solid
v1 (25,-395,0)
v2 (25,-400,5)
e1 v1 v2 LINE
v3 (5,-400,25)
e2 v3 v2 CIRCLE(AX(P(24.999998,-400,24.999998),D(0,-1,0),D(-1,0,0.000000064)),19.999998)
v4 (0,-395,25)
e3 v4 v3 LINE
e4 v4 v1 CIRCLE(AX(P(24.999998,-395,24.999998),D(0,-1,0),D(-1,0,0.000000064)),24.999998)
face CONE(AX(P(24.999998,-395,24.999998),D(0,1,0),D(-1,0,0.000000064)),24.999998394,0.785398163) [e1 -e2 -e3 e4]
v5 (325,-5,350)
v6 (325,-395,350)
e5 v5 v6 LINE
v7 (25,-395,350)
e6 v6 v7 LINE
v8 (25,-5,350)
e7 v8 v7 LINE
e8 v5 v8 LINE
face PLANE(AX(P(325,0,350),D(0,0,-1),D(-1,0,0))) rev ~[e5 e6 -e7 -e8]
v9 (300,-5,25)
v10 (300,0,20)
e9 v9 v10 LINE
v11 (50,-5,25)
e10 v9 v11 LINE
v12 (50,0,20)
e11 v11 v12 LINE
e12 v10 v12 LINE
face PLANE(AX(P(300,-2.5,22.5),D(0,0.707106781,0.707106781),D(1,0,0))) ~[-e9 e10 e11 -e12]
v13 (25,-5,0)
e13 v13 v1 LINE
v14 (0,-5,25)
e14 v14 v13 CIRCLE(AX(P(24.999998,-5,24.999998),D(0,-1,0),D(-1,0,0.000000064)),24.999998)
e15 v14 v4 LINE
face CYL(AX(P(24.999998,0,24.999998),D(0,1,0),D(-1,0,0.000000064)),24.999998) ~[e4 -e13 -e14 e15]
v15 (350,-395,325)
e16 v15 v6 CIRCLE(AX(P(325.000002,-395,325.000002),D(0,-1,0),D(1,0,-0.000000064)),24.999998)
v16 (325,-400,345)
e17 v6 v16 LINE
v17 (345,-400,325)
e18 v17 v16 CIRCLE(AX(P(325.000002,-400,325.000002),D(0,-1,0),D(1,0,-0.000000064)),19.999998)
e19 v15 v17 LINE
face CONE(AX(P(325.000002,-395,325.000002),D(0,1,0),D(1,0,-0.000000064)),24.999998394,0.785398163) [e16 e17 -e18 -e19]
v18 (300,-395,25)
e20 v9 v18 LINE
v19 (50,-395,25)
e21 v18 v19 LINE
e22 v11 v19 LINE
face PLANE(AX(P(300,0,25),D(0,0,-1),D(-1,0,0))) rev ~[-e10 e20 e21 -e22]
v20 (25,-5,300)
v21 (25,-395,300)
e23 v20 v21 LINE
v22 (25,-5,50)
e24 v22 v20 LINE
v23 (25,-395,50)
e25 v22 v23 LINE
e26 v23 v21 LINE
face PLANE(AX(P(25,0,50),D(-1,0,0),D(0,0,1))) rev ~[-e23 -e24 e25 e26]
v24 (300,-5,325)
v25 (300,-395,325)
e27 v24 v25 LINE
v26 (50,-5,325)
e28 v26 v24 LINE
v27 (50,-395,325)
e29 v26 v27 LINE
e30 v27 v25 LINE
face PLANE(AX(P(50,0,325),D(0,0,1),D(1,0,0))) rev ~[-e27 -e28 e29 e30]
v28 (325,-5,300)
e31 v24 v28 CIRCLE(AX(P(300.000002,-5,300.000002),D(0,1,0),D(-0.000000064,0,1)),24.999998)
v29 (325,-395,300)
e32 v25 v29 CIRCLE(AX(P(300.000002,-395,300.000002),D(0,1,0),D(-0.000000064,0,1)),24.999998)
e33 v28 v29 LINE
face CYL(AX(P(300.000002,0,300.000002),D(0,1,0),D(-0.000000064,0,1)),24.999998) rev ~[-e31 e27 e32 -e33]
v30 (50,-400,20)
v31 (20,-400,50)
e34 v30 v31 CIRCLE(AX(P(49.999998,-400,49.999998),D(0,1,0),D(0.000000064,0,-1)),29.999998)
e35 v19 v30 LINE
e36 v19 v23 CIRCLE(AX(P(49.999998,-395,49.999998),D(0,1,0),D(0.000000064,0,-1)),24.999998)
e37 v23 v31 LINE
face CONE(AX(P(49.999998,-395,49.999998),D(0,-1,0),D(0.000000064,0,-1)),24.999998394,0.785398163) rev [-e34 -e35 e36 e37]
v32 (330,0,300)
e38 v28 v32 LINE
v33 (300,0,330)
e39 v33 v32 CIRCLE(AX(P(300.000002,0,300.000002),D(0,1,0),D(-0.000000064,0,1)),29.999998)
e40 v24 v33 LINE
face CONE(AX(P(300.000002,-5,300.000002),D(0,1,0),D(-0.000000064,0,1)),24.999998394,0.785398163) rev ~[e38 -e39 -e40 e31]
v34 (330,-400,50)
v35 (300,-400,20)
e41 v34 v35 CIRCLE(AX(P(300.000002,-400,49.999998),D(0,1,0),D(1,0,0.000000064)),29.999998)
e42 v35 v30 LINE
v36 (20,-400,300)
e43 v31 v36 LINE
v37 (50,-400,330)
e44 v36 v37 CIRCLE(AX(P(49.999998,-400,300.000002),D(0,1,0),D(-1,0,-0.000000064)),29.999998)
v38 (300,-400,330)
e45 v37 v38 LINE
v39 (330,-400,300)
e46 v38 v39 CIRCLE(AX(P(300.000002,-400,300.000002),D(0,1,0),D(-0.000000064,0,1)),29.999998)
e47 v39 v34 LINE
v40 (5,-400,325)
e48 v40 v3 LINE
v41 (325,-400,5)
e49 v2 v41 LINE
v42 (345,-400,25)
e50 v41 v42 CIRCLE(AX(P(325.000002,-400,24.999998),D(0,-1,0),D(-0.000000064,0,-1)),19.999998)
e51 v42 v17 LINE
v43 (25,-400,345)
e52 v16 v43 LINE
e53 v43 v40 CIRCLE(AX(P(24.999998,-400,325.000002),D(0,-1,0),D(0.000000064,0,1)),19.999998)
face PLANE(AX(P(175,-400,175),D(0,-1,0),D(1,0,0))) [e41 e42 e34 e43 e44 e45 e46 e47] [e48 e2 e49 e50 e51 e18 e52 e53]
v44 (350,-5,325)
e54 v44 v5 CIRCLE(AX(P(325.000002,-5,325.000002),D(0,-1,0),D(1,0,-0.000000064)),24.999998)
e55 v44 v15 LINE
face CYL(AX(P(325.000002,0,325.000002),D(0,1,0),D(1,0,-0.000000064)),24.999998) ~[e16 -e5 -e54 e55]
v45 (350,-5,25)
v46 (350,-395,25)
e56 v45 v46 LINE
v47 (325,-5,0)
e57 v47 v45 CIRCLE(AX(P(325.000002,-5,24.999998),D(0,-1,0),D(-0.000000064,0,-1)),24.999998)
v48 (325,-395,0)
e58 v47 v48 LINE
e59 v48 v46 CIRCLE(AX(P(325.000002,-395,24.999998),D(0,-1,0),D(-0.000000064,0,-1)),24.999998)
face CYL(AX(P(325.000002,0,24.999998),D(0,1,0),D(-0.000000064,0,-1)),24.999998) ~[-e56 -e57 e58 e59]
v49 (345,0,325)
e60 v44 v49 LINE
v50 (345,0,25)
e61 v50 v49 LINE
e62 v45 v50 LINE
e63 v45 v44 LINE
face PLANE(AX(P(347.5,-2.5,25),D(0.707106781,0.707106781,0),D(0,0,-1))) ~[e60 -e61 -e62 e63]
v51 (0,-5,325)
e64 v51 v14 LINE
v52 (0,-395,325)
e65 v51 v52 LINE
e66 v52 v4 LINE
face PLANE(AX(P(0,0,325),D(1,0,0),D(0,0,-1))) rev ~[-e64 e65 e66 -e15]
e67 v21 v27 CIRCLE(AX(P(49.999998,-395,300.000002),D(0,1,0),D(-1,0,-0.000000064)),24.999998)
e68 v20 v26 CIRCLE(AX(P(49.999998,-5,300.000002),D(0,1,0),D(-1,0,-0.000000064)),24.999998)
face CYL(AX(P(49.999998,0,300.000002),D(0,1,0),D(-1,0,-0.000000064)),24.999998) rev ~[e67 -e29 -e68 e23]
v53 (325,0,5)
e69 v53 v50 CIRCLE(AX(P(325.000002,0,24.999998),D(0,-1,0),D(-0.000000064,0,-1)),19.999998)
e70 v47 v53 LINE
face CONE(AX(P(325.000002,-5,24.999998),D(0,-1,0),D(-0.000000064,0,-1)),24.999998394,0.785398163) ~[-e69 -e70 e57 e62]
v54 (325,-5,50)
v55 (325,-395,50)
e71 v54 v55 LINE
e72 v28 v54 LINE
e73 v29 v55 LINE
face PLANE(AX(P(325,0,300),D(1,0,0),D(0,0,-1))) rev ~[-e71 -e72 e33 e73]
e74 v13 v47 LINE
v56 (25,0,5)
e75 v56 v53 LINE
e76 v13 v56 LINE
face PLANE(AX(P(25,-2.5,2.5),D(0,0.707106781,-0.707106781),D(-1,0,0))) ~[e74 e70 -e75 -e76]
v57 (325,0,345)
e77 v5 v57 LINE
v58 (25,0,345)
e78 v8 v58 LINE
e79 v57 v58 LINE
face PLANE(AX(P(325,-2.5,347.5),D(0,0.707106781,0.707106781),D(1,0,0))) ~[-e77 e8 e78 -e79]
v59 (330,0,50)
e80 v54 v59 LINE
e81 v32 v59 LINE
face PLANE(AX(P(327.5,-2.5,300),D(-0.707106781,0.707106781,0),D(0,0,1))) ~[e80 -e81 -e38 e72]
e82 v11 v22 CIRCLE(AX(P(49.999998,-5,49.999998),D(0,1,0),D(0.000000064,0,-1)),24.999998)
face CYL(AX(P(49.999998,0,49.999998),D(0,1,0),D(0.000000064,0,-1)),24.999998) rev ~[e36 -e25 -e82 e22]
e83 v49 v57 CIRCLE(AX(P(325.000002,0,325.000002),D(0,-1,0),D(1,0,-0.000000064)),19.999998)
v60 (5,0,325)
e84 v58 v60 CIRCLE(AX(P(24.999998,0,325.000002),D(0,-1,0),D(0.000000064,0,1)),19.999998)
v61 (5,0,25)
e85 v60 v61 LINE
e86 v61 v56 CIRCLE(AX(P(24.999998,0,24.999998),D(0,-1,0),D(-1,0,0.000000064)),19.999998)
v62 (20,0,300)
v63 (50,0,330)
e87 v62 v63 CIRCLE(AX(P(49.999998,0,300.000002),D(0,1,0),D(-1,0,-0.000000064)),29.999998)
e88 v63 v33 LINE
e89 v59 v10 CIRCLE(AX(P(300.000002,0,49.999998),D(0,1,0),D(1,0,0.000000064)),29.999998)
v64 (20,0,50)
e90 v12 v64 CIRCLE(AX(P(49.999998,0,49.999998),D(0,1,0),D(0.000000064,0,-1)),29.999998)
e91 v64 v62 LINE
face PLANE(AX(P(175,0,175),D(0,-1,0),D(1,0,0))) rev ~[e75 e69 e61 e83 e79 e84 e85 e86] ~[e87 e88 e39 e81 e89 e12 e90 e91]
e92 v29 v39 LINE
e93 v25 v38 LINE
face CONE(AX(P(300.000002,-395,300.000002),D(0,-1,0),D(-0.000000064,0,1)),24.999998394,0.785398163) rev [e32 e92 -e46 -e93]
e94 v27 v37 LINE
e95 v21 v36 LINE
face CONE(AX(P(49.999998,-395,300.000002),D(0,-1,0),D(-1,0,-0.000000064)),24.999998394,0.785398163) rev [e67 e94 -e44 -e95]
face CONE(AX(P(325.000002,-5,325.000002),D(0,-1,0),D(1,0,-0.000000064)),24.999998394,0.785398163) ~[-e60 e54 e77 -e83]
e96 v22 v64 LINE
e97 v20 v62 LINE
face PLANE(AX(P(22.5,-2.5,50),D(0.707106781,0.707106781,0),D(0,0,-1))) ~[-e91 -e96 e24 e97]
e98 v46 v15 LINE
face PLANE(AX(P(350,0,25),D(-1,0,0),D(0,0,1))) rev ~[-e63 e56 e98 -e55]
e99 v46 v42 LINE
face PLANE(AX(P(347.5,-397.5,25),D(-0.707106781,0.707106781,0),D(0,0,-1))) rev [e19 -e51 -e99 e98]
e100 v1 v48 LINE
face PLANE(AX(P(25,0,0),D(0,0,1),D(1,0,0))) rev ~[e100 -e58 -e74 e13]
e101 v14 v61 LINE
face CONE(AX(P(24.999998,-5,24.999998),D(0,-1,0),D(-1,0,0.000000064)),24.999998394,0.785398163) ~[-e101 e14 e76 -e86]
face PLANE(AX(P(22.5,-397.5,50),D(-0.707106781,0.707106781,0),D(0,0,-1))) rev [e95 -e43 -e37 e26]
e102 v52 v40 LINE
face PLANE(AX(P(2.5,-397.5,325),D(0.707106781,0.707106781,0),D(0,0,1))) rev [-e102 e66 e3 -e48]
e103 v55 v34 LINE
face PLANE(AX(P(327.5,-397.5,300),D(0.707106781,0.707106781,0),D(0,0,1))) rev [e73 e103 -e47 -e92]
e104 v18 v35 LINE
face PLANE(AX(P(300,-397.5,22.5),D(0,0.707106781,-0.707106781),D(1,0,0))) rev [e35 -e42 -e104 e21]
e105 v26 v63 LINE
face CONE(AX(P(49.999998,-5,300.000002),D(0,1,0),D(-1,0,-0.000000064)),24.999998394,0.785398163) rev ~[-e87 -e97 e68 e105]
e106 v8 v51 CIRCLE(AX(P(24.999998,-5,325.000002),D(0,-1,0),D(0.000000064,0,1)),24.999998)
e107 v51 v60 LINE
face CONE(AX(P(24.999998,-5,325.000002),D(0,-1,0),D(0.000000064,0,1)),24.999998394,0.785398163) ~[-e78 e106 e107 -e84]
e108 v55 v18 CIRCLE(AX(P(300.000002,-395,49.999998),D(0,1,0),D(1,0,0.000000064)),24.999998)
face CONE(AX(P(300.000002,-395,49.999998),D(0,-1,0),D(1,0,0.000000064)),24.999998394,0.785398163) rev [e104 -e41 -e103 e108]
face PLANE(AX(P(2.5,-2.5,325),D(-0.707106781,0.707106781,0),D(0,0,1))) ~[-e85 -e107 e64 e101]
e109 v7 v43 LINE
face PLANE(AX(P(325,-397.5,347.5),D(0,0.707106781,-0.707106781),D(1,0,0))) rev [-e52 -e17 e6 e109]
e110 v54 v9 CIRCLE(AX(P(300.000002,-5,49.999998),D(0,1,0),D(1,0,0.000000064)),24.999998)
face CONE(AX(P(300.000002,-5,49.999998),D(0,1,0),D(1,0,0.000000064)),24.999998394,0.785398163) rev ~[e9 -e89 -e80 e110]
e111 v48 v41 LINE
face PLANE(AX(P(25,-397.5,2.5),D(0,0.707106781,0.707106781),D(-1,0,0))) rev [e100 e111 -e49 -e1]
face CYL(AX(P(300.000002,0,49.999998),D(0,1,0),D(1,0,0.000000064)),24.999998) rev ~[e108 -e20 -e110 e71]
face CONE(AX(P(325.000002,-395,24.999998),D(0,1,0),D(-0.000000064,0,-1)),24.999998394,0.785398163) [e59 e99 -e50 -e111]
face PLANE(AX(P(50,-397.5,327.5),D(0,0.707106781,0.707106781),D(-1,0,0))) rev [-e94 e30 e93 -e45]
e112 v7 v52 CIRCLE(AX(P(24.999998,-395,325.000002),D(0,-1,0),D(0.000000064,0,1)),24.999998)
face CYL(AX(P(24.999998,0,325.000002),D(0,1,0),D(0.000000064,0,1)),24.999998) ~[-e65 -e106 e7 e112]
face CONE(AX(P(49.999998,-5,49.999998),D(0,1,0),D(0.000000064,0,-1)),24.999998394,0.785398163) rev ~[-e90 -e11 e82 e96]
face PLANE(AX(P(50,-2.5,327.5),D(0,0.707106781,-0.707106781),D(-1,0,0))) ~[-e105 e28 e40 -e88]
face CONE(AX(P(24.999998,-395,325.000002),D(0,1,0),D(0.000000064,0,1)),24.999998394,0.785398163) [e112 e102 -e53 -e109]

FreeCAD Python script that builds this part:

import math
import FreeCAD as App
import Part
import Sketcher

V = App.Vector


def edges_at(feature, points):
    """Names of the edges that pass closest to the given points."""
    edges = feature.Shape.Edges
    near = lambda p: min(range(len(edges)), key=lambda i: edges[i].distToShape(Part.Vertex(*p))[0])
    return sorted({f"Edge{near(p) + 1}" for p in points})

doc = App.newDocument("Part")
body = doc.addObject("PartDesign::Body", "Body")

# Sketch on XZ plane
sketch1 = body.newObject("Sketcher::SketchObject", "Sketch")
sketch1.AttachmentSupport = (doc.getObject("XZ_Plane"), [""])
sketch1.MapMode = "FlatFace"
sketch1.addGeometry(Part.ArcOfCircle(Part.Circle(V(25, 25, 0), V(0, 0, 1), 25), math.radians(180), math.radians(270)), False)
sketch1.addGeometry(Part.LineSegment(V(25, 0, 0), V(325, 0, 0)), False)
sketch1.addGeometry(Part.ArcOfCircle(Part.Circle(V(325, 25, 0), V(0, 0, 1), 25), math.radians(-90), math.radians(0)), False)
sketch1.addGeometry(Part.LineSegment(V(350, 25, 0), V(350, 325, 0)), False)
sketch1.addGeometry(Part.ArcOfCircle(Part.Circle(V(325, 325, 0), V(0, 0, 1), 25), math.radians(0), math.radians(90)), False)
sketch1.addGeometry(Part.LineSegment(V(325, 350, 0), V(25, 350, 0)), False)
sketch1.addGeometry(Part.ArcOfCircle(Part.Circle(V(25, 325, 0), V(0, 0, 1), 25), math.radians(90), math.radians(180)), False)
sketch1.addGeometry(Part.LineSegment(V(0, 325, 0), V(0, 25, 0)), False)
sketch1.addGeometry(Part.LineSegment(V(25, 50, 0), V(25, 300, 0)), False)
sketch1.addGeometry(Part.ArcOfCircle(Part.Circle(V(50, 300, 0), V(0, 0, 1), 25), math.radians(90), math.radians(180)), False)
sketch1.addGeometry(Part.LineSegment(V(50, 325, 0), V(300, 325, 0)), False)
sketch1.addGeometry(Part.ArcOfCircle(Part.Circle(V(300, 300, 0), V(0, 0, 1), 25), math.radians(0), math.radians(90)), False)
sketch1.addGeometry(Part.LineSegment(V(325, 300, 0), V(325, 50, 0)), False)
sketch1.addGeometry(Part.ArcOfCircle(Part.Circle(V(300, 50, 0), V(0, 0, 1), 25), math.radians(-90), math.radians(0)), False)
sketch1.addGeometry(Part.LineSegment(V(300, 25, 0), V(50, 25, 0)), False)
sketch1.addGeometry(Part.ArcOfCircle(Part.Circle(V(50, 50, 0), V(0, 0, 1), 25), math.radians(180), math.radians(270)), False)
sketch1.addConstraint(Sketcher.Constraint("Tangent", 0, 2, 1, 1))
sketch1.addConstraint(Sketcher.Constraint("Tangent", 1, 2, 2, 1))
sketch1.addConstraint(Sketcher.Constraint("Tangent", 2, 2, 3, 1))
sketch1.addConstraint(Sketcher.Constraint("Tangent", 3, 2, 4, 1))
sketch1.addConstraint(Sketcher.Constraint("Tangent", 4, 2, 5, 1))
sketch1.addConstraint(Sketcher.Constraint("Tangent", 5, 2, 6, 1))
sketch1.addConstraint(Sketcher.Constraint("Tangent", 6, 2, 7, 1))
sketch1.addConstraint(Sketcher.Constraint("Tangent", 7, 2, 0, 1))
sketch1.addConstraint(Sketcher.Constraint("Tangent", 8, 2, 9, 2))
sketch1.addConstraint(Sketcher.Constraint("Tangent", 9, 1, 10, 1))
sketch1.addConstraint(Sketcher.Constraint("Tangent", 10, 2, 11, 2))
sketch1.addConstraint(Sketcher.Constraint("Tangent", 11, 1, 12, 1))
sketch1.addConstraint(Sketcher.Constraint("Tangent", 12, 2, 13, 2))
sketch1.addConstraint(Sketcher.Constraint("Tangent", 13, 1, 14, 1))
sketch1.addConstraint(Sketcher.Constraint("Tangent", 14, 2, 15, 2))
sketch1.addConstraint(Sketcher.Constraint("Tangent", 15, 1, 8, 1))
sketch1.addConstraint(Sketcher.Constraint("Horizontal", 1))
sketch1.addConstraint(Sketcher.Constraint("Vertical", 3))
sketch1.addConstraint(Sketcher.Constraint("Horizontal", 5))
sketch1.addConstraint(Sketcher.Constraint("Vertical", 7))
sketch1.addConstraint(Sketcher.Constraint("Vertical", 8))
sketch1.addConstraint(Sketcher.Constraint("Horizontal", 10))
sketch1.addConstraint(Sketcher.Constraint("Vertical", 12))
sketch1.addConstraint(Sketcher.Constraint("Horizontal", 14))
sketch1.addConstraint(Sketcher.Constraint("Equal", 0, 2))
sketch1.addConstraint(Sketcher.Constraint("Equal", 2, 4))
sketch1.addConstraint(Sketcher.Constraint("Equal", 4, 6))
sketch1.addConstraint(Sketcher.Constraint("Equal", 6, 9))
sketch1.addConstraint(Sketcher.Constraint("Equal", 9, 11))
sketch1.addConstraint(Sketcher.Constraint("Equal", 11, 13))
sketch1.addConstraint(Sketcher.Constraint("Equal", 13, 15))
sketch1.addConstraint(Sketcher.Constraint("PointOnObject", 0, 2, -1))
sketch1.addConstraint(Sketcher.Constraint("PointOnObject", 6, 2, -2))
sketch1.addConstraint(Sketcher.Constraint("Horizontal", 6, 2, 9, 1))
sketch1.addConstraint(Sketcher.Constraint("Horizontal", 7, 2, 13, 1))
sketch1.addConstraint(Sketcher.Constraint("Vertical", 5, 2, 8, 2))
sketch1.addConstraint(Sketcher.Constraint("Vertical", 4, 2, 11, 1))
sketch1.addConstraint(Sketcher.Constraint("Equal", 5, 3))
sketch1.addConstraint(Sketcher.Constraint("Radius", 0, 24.999998))
sketch1.addConstraint(Sketcher.Constraint("DistanceX", 1, 1, 1, 2, 300.0))
pad1 = body.newObject("PartDesign::Pad", "Pad")
pad1.Profile = sketch1
pad1.Length = 400
doc.recompute()

chamfer = body.newObject("PartDesign::Chamfer", "Chamfer")
chamfer.Base = (pad1, edges_at(pad1, [
    (0, -400, 175),
    (25, -400, 175),
    (175, 0, 350),
    (175, 0, 325),
]))
chamfer.Size = 5

doc.recompute()
